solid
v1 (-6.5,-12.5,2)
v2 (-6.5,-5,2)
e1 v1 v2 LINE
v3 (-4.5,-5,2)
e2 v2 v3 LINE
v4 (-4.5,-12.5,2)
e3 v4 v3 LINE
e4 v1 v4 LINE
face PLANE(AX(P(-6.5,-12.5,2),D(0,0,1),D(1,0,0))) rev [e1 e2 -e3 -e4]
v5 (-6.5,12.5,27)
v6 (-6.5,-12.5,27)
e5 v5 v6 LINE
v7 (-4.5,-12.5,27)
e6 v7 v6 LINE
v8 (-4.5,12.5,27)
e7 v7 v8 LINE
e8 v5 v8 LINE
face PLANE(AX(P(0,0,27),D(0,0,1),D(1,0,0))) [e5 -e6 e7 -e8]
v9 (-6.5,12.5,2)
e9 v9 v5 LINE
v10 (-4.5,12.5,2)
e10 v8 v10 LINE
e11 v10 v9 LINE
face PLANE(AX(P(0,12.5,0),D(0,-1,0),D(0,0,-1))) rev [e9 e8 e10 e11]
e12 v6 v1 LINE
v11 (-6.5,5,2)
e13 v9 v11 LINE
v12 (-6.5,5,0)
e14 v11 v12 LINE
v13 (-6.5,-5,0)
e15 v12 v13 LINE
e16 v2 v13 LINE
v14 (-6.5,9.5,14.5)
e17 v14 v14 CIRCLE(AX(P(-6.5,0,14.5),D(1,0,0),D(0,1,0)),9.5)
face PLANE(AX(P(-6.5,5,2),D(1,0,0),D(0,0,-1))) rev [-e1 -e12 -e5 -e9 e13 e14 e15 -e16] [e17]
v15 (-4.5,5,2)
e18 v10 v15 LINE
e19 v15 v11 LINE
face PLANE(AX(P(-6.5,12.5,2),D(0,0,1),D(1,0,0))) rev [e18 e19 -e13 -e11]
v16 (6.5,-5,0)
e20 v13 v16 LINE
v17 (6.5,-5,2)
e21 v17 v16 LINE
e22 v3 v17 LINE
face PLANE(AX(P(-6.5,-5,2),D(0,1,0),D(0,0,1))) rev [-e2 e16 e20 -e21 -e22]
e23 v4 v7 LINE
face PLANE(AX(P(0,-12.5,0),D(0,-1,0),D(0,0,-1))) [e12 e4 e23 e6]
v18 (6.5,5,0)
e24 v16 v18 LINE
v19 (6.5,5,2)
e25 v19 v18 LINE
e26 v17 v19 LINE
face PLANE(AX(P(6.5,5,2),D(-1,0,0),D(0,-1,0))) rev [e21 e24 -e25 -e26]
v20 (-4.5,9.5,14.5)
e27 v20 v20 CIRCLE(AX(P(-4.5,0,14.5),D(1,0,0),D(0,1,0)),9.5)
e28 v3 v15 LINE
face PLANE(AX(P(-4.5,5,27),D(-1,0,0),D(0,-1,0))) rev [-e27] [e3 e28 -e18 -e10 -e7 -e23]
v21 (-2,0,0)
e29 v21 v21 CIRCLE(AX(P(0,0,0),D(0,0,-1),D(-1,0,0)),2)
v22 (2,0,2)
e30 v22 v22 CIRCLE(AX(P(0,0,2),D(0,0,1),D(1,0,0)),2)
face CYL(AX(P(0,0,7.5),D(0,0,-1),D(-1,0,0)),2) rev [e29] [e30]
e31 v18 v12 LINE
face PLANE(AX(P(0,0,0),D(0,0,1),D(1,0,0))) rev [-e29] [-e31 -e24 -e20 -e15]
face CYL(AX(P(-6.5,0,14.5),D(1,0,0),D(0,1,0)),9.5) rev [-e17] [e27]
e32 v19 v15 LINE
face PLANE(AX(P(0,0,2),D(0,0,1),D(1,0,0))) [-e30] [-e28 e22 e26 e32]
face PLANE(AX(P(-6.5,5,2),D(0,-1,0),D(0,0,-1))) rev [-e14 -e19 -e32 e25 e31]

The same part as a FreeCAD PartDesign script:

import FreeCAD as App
import Part
import Sketcher

V = App.Vector


def add_polygon(sketch, points):
    """Adds a closed chain of lines whose ends are joined by coincident constraints."""
    first, n = sketch.GeometryCount, len(points)
    for a, b in zip(points, points[1:] + points[:1]):
        sketch.addGeometry(Part.LineSegment(App.Vector(*a, 0), App.Vector(*b, 0)), False)
    for i in range(n):
        sketch.addConstraint(Sketcher.Constraint("Coincident", first + i, 2, first + (i + 1) % n, 1))

doc = App.newDocument("Part")
params = doc.addObject("Spreadsheet::Sheet", "Params")
for row, (alias, value) in enumerate([
    ("sketch1_width", "13 mm"),
    ("sketch1_height", "10 mm"),
    ("pad1_length", "2 mm"),
    ("sketch2_width", "2 mm"),
    ("sketch2_height", "10 mm"),
    ("pad2_length", "25 mm"),
    ("sketch3_width", "2 mm"),
    ("sketch3_height", "25 mm"),
    ("pad3_length", "7.5 mm"),
    ("sketch4_width", "2 mm"),
    ("sketch4_height", "25 mm"),
    ("pad4_length", "7.5 mm"),
    ("sketch5_diameter", "4 mm"),
    ("pocket1_length", "7.5 mm"),
    ("sketch6_diameter", "19 mm"),
], start=1):
    params.set(f"A{row}", alias)
    params.set(f"B{row}", "=" + value)
    params.setAlias(f"B{row}", alias)

body = doc.addObject("PartDesign::Body", "Body")

sketch1 = body.newObject("Sketcher::SketchObject", "Sketch")
sketch1.AttachmentSupport = (doc.getObject("XY_Plane"), [""])
sketch1.MapMode = "FlatFace"
add_polygon(sketch1, [(-6, 5), (-6, -5), (6, -5), (6, 5)])
sketch1.addConstraint([
    Sketcher.Constraint("Vertical", 0),
    Sketcher.Constraint("Horizontal", 1),
    Sketcher.Constraint("Vertical", 2),
    Sketcher.Constraint("Horizontal", 3),
    Sketcher.Constraint("Symmetric", 0, 2, 2, 2, -1, 1),
    Sketcher.Constraint("DistanceX", 1, 1, 1, 2, 13.0),
    Sketcher.Constraint("DistanceY", 0, 2, 0, 1, 10.0),
])
sketch1.setExpression("Constraints[9]", "Params.sketch1_width")
sketch1.setExpression("Constraints[10]", "Params.sketch1_height")
pad1 = body.newObject("PartDesign::Pad", "Pad")
pad1.Profile = sketch1
pad1.setExpression("Length", "Params.pad1_length")

sketch2 = body.newObject("Sketcher::SketchObject", "Sketch001")
sketch2.AttachmentSupport = (doc.getObject("XY_Plane"), [""])
sketch2.MapMode = "FlatFace"
sketch2.AttachmentOffset = App.Placement(V(0, 0, 2), App.Rotation())
add_polygon(sketch2, [(-6.5, 5), (-6.5, -5), (-4.5, -5), (-4.5, 5)])
sketch2.addConstraint([
    Sketcher.Constraint("Vertical", 0),
    Sketcher.Constraint("Horizontal", 1),
    Sketcher.Constraint("Vertical", 2),
    Sketcher.Constraint("Horizontal", 3),
    Sketcher.Constraint("DistanceX", 1, 1, 1, 2, 2.0),
    Sketcher.Constraint("DistanceY", 0, 2, 0, 1, 10.0),
    Sketcher.Constraint("DistanceY", 0, 2, -1, 1, 5.0),
    Sketcher.Constraint("DistanceX", 0, 2, -1, 1, 6.5),
])
sketch2.setExpression("Constraints[8]", "Params.sketch2_width")
sketch2.setExpression("Constraints[9]", "Params.sketch2_height")
pad2 = body.newObject("PartDesign::Pad", "Pad001")
pad2.Profile = sketch2
pad2.setExpression("Length", "Params.pad2_length")

sketch3 = body.newObject("Sketcher::SketchObject", "Sketch002")
sketch3.AttachmentSupport = (doc.getObject("XZ_Plane"), [""])
sketch3.MapMode = "FlatFace"
sketch3.AttachmentOffset = App.Placement(V(0, 0, -5), App.Rotation())
add_polygon(sketch3, [(-6.5, 2), (-6.5, 27), (-4.5, 27), (-4.5, 2)])
sketch3.addConstraint([
    Sketcher.Constraint("Vertical", 0),
    Sketcher.Constraint("Horizontal", 1),
    Sketcher.Constraint("Vertical", 2),
    Sketcher.Constraint("Horizontal", 3),
    Sketcher.Constraint("DistanceX", 1, 1, 1, 2, 2.0),
    Sketcher.Constraint("DistanceY", 0, 1, 0, 2, 25.0),
    Sketcher.Constraint("DistanceY", -1, 1, 0, 2, 27.0),
    Sketcher.Constraint("DistanceX", 0, 2, -1, 1, 6.5),
])
sketch3.setExpression("Constraints[8]", "Params.sketch3_width")
sketch3.setExpression("Constraints[9]", "Params.sketch3_height")
pad3 = body.newObject("PartDesign::Pad", "Pad002")
pad3.Profile = sketch3
pad3.setExpression("Length", "Params.pad3_length")
pad3.Reversed = True

sketch4 = body.newObject("Sketcher::SketchObject", "Sketch003")
sketch4.AttachmentSupport = (doc.getObject("XZ_Plane"), [""])
sketch4.MapMode = "FlatFace"
sketch4.AttachmentOffset = App.Placement(V(0, 0, 5), App.Rotation())
add_polygon(sketch4, [(-6.5, 27), (-6.5, 2), (-4.5, 2), (-4.5, 27)])
sketch4.addConstraint([
    Sketcher.Constraint("Vertical", 0),
    Sketcher.Constraint("Horizontal", 1),
    Sketcher.Constraint("Vertical", 2),
    Sketcher.Constraint("Horizontal", 3),
    Sketcher.Constraint("DistanceX", 1, 1, 1, 2, 2.0),
    Sketcher.Constraint("DistanceY", 0, 2, 0, 1, 25.0),
    Sketcher.Constraint("DistanceY", -1, 1, 0, 2, 2.0),
    Sketcher.Constraint("DistanceX", 0, 2, -1, 1, 6.5),
])
sketch4.setExpression("Constraints[8]", "Params.sketch4_width")
sketch4.setExpression("Constraints[9]", "Params.sketch4_height")
pad4 = body.newObject("PartDesign::Pad", "Pad003")
pad4.Profile = sketch4
pad4.setExpression("Length", "Params.pad4_length")

sketch5 = body.newObject("Sketcher::SketchObject", "Sketch004")
sketch5.AttachmentSupport = (doc.getObject("XY_Plane"), [""])
sketch5.MapMode = "FlatFace"
sketch5.addGeometry(Part.Circle(V(0, 0, 0), V(0, 0, 1), 2), False)
sketch5.addConstraint([
    Sketcher.Constraint("Coincident", 0, 3, -1, 1),
    Sketcher.Constraint("Diameter", 0, 4.0),
])
sketch5.setExpression("Constraints[1]", "Params.sketch5_diameter")
pocket1 = body.newObject("PartDesign::Pocket", "Pocket")
pocket1.Profile = sketch5
pocket1.setExpression("Length", "Params.pocket1_length")
pocket1.Reversed = True

sketch6 = body.newObject("Sketcher::SketchObject", "Sketch005")
sketch6.AttachmentSupport = (doc.getObject("YZ_Plane"), [""])
sketch6.MapMode = "FlatFace"
sketch6.AttachmentOffset = App.Placement(V(0, 0, -4.5), App.Rotation())
sketch6.addGeometry(Part.Circle(V(0, 14, 0), V(0, 0, 1), 10), False)
sketch6.addConstraint([
    Sketcher.Constraint("PointOnObject", 0, 3, -2),
    Sketcher.Constraint("Diameter", 0, 19.0),
    Sketcher.Constraint("DistanceY", -1, 1, 0, 3, 14.5),
])
sketch6.setExpression("Constraints[1]", "Params.sketch6_diameter")
pocket2 = body.newObject("PartDesign::Pocket", "Pocket001")
pocket2.Profile = sketch6
pocket2.Type = "ThroughAll"

doc.recompute()
